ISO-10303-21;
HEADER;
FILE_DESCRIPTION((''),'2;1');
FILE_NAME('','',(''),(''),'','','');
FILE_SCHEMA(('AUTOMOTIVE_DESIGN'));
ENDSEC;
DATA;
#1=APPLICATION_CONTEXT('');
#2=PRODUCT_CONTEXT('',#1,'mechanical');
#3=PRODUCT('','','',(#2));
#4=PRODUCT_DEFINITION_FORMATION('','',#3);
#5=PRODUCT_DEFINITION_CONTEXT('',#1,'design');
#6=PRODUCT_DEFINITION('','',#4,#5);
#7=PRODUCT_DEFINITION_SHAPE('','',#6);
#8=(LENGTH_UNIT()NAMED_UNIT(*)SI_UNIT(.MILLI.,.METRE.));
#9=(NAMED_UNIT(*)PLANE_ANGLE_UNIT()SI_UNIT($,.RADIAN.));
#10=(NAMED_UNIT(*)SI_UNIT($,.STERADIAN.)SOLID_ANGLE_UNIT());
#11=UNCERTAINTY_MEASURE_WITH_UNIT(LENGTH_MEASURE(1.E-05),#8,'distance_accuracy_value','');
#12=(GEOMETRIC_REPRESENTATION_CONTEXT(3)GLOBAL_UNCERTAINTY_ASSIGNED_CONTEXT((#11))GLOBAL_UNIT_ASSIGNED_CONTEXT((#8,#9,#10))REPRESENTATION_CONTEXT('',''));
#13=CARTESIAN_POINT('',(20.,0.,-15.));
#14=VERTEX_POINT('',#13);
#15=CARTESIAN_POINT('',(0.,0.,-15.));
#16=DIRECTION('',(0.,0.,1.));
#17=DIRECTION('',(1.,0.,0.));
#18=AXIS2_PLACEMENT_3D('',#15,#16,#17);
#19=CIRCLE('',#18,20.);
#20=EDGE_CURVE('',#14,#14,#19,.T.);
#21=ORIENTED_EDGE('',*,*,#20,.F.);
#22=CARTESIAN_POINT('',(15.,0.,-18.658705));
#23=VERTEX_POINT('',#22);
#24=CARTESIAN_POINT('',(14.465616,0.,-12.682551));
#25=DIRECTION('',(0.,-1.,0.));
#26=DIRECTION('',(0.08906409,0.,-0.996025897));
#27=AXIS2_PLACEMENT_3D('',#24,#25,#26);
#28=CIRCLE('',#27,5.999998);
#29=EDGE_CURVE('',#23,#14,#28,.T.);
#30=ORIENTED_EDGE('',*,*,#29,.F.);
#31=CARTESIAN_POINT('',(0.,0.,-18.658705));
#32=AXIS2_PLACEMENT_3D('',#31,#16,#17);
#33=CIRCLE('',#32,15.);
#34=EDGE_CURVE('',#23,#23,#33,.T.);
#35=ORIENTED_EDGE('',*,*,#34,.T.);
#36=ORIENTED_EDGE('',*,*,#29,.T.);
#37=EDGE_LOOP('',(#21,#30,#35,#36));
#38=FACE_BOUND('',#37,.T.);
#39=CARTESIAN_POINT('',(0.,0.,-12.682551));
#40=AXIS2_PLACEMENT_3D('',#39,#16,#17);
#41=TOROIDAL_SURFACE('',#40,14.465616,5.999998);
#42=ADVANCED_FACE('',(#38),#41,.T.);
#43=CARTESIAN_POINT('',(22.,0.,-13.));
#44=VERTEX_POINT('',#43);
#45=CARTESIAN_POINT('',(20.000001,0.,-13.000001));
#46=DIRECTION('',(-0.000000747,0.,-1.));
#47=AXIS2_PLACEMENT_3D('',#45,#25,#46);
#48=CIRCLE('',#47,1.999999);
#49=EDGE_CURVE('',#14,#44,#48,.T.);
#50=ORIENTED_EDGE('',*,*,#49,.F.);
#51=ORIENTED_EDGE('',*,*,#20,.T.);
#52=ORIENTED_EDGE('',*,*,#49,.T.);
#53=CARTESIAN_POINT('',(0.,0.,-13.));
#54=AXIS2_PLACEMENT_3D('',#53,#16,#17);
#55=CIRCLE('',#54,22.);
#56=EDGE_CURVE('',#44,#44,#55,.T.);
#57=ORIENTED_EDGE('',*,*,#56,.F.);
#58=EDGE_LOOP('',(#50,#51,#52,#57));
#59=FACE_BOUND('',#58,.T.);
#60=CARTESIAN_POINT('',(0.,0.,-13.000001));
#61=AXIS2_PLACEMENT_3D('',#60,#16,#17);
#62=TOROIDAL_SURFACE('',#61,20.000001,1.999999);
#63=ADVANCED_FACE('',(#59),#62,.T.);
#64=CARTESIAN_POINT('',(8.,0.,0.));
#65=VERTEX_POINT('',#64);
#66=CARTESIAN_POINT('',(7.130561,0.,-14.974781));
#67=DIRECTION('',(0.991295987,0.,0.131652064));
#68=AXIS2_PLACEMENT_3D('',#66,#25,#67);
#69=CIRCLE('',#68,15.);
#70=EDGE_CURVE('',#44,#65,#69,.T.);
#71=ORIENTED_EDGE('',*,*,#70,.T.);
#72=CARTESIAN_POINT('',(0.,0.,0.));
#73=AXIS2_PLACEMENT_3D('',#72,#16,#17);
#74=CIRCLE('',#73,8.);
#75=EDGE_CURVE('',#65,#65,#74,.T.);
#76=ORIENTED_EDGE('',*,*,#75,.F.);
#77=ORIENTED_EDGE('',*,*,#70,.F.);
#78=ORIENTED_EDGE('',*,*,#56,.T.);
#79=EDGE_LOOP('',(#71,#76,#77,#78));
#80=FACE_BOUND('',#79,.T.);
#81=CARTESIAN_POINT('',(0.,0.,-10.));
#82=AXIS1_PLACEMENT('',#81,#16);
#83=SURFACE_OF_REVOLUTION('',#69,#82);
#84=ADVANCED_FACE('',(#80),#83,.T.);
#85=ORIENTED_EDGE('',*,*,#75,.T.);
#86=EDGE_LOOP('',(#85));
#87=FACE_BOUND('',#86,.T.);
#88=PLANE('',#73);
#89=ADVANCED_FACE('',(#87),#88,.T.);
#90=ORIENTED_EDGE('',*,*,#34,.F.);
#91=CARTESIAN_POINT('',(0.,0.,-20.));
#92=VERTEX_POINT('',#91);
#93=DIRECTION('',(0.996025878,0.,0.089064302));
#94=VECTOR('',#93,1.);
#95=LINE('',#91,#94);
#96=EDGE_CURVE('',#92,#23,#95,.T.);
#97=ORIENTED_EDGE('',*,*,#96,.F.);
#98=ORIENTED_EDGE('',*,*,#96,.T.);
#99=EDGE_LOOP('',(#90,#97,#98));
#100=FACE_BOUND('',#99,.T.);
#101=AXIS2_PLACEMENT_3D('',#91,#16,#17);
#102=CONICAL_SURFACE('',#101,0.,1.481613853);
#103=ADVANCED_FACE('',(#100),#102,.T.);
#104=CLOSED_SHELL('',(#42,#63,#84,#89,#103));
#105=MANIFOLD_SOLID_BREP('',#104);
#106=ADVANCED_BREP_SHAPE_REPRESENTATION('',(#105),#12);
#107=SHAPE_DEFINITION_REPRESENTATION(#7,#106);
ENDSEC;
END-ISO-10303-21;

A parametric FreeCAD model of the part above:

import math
import FreeCAD as App
import Part
import Sketcher

doc = App.newDocument("Part")
body = doc.addObject("PartDesign::Body", "Body")

# Sketch on XZ plane
sketch1 = doc.addObject("Sketcher::SketchObject", "Sketch")
body.addObject(sketch1)
sketch1.AttachmentSupport = (doc.XZ_Plane, [""])
sketch1.MapMode = "FlatFace"
sketch1.addGeometry(Part.LineSegment(App.Vector(8, 0, 0), App.Vector(0, 0, 0)), False)
sketch1.addGeometry(Part.LineSegment(App.Vector(0, 0, 0), App.Vector(0, -20, 0)), False)
sketch1.addGeometry(Part.LineSegment(App.Vector(0, -20, 0), App.Vector(15, -18.7, 0)), False)
sketch1.addGeometry(Part.ArcOfCircle(Part.Circle(App.Vector(14.5, -12.7, 0), App.Vector(0, 0, 1), 6), math.radians(-85), math.radians(-23)), False)
sketch1.addGeometry(Part.ArcOfCircle(Part.Circle(App.Vector(20, -13, 0), App.Vector(0, 0, 1), 2), math.radians(-90), math.radians(0)), False)
sketch1.addGeometry(Part.ArcOfCircle(Part.Circle(App.Vector(7.1, -15, 0), App.Vector(0, 0, 1), 15), math.radians(8), math.radians(87)), False)
sketch1.addConstraint(Sketcher.Constraint("Coincident", 0, 2, 1, 1))
sketch1.addConstraint(Sketcher.Constraint("Coincident", 1, 2, 2, 1))
sketch1.addConstraint(Sketcher.Constraint("Tangent", 2, 2, 3, 1))
sketch1.addConstraint(Sketcher.Constraint("Coincident", 3, 2, 4, 1))
sketch1.addConstraint(Sketcher.Constraint("Coincident", 4, 2, 5, 1))
sketch1.addConstraint(Sketcher.Constraint("Coincident", 5, 2, 0, 1))
sketch1.addConstraint(Sketcher.Constraint("Horizontal", 0))
sketch1.addConstraint(Sketcher.Constraint("Vertical", 1))
sketch1.addConstraint(Sketcher.Constraint("Coincident", 0, 2, -1, 1))
sketch1.addConstraint(Sketcher.Constraint("Vertical", 4, 3, 3, 2))
sketch1.addConstraint(Sketcher.Constraint("Radius", 3, 5.999998))
sketch1.addConstraint(Sketcher.Constraint("Radius", 4, 1.999999))
sketch1.addConstraint(Sketcher.Constraint("Radius", 5, 15.0))
sketch1.addConstraint(Sketcher.Constraint("DistanceX", 0, 2, 0, 1, 8.0))
sketch1.addConstraint(Sketcher.Constraint("DistanceY", 1, 2, 1, 1, 20.0))
sketch1.addConstraint(Sketcher.Constraint("DistanceX", -1, 1, 4, 3, 20.000001))
sketch1.addConstraint(Sketcher.Constraint("DistanceY", 4, 3, -1, 1, 13.000001))
sketch1.addConstraint(Sketcher.Constraint("DistanceX", -1, 1, 2, 2, 15.0))
sketch1.addConstraint(Sketcher.Constraint("DistanceY", 4, 2, -1, 1, 13.0))
revolution = doc.addObject("PartDesign::Revolution", "Revolution")
body.addObject(revolution)
revolution.Profile = sketch1
revolution.ReferenceAxis = (sketch1, ["V_Axis"])
revolution.Angle = 360

doc.recompute()
